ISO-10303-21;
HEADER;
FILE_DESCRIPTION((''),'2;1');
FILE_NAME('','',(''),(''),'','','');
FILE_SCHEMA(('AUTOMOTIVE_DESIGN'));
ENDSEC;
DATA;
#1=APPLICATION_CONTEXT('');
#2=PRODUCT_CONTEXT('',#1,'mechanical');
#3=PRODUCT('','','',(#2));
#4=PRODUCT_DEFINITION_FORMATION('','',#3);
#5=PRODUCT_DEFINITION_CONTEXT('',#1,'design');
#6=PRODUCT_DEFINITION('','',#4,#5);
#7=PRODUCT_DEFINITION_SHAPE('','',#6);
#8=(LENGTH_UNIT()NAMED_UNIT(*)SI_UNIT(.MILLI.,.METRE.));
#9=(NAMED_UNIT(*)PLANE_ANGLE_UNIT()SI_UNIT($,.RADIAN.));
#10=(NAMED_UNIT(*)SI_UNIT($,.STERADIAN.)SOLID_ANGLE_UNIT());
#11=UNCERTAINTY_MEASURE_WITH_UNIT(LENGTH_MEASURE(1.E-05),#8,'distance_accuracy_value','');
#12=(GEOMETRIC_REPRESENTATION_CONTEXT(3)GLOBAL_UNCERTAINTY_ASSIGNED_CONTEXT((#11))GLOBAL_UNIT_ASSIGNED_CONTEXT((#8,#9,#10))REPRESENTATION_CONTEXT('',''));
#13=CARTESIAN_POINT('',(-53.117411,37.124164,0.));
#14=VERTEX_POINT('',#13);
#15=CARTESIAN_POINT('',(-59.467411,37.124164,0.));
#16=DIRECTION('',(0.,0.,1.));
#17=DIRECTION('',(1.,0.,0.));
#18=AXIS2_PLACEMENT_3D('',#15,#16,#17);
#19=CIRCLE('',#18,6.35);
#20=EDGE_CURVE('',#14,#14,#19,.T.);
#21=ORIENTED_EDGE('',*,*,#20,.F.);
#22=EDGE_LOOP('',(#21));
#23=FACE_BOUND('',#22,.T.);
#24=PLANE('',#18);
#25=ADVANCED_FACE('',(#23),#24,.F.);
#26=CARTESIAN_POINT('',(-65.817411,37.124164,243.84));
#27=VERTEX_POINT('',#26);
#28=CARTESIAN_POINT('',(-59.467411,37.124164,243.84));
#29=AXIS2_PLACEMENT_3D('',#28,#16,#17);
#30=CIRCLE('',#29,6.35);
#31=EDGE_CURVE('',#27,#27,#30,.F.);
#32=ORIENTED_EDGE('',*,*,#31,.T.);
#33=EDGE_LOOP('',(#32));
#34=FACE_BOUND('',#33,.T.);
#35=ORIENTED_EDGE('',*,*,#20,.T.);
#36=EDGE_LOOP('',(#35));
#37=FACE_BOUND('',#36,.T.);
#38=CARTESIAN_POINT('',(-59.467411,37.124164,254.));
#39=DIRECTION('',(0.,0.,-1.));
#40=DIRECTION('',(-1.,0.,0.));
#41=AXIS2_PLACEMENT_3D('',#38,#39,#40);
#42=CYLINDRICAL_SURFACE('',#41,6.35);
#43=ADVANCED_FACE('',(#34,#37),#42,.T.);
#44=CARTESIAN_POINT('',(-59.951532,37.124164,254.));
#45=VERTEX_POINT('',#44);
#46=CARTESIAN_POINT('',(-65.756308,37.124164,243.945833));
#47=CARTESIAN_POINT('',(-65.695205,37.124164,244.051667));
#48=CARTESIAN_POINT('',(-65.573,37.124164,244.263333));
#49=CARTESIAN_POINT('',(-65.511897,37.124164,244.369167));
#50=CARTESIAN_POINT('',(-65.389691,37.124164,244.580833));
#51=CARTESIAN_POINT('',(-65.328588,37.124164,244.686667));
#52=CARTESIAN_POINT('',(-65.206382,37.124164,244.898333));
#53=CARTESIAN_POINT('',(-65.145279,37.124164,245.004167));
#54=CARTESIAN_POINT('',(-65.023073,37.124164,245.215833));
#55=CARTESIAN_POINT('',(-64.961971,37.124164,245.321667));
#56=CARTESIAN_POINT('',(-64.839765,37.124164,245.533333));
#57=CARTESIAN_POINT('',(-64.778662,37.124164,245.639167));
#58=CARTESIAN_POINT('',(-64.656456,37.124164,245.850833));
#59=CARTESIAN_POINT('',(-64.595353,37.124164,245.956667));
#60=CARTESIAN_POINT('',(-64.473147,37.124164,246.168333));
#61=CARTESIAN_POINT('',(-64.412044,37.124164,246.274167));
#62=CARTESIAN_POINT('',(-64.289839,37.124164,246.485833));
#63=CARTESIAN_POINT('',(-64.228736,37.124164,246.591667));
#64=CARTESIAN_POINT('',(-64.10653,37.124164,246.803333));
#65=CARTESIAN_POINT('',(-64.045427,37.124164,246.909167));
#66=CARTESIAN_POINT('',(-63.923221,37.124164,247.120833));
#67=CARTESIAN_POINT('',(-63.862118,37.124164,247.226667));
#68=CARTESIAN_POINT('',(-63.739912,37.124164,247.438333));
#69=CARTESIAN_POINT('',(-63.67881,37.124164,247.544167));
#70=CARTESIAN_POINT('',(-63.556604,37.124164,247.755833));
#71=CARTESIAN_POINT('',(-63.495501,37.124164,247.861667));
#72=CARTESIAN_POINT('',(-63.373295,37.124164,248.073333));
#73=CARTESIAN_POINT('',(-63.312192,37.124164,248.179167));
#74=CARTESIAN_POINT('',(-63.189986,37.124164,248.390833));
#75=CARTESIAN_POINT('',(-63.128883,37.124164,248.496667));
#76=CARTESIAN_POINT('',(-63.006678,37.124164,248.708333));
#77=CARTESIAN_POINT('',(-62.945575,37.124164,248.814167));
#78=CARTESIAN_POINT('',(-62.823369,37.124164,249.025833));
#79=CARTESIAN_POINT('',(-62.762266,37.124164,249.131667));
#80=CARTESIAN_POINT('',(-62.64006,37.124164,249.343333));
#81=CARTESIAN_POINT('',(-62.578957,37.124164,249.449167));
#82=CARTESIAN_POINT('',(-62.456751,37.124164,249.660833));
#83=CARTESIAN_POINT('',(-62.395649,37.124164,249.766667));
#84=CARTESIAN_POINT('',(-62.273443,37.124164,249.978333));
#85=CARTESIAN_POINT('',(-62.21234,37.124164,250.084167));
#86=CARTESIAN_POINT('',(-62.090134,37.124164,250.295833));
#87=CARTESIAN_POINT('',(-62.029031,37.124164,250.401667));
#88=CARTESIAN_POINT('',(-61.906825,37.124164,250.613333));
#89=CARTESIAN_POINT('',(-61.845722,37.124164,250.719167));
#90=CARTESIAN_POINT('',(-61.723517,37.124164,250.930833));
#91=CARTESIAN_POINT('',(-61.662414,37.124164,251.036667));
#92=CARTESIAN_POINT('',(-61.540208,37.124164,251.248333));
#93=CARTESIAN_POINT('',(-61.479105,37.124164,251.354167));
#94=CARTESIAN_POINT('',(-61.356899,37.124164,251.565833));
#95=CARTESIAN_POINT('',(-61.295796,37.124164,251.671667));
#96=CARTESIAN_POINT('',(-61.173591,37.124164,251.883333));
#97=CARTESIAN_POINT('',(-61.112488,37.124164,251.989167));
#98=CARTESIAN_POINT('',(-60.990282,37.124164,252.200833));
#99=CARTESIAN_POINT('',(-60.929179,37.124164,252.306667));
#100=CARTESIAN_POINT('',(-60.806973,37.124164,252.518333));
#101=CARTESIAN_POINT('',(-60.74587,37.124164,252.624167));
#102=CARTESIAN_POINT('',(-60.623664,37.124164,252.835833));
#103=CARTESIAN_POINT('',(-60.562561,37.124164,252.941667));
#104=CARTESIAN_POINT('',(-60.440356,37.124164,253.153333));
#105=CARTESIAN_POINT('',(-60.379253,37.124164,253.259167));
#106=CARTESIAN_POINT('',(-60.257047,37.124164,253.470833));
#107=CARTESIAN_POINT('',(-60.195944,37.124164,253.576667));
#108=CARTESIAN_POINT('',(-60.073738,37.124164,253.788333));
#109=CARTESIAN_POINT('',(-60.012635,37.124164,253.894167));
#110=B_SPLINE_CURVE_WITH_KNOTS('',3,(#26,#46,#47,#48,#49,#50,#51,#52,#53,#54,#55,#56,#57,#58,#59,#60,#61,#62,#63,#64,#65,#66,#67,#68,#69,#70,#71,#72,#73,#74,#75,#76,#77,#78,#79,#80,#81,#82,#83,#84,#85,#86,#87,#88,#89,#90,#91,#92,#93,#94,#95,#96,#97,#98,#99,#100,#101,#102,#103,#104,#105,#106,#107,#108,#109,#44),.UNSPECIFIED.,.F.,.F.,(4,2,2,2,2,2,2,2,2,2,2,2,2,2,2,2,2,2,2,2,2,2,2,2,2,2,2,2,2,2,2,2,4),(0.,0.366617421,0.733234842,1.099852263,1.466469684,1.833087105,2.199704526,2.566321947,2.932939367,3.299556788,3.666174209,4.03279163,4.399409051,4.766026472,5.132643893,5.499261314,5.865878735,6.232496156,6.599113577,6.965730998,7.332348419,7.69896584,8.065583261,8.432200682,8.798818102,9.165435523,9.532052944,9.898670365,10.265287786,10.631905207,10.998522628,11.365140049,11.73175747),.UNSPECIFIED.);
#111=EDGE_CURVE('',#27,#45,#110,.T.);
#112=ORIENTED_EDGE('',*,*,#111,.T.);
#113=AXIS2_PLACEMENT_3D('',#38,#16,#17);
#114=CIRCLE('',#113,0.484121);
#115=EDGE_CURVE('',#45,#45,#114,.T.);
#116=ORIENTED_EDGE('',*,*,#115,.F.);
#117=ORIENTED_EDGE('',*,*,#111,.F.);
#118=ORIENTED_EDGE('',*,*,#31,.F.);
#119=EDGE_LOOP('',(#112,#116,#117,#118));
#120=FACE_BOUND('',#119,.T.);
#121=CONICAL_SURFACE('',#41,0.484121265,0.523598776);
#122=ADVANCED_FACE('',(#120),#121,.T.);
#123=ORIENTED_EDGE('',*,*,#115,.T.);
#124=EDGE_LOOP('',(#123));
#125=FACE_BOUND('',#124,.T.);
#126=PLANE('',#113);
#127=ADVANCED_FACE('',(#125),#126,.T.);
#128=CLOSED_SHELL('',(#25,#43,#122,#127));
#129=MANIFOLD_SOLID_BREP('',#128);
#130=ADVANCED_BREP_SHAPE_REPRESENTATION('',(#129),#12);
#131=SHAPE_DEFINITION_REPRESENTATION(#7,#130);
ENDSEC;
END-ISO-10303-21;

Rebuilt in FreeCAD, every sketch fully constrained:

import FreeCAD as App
import Part
import Sketcher

V = App.Vector
Q = App.Units.Quantity


def edges_at(feature, points):
    """Names of the edges that pass closest to the given points."""
    edges = feature.Shape.Edges
    near = lambda p: min(range(len(edges)), key=lambda i: edges[i].distToShape(Part.Vertex(*p))[0])
    return sorted({f"Edge{near(p) + 1}" for p in points})

doc = App.newDocument("Part")
body = doc.addObject("PartDesign::Body", "Body")

# Sketch on XY plane
sketch1 = doc.addObject("Sketcher::SketchObject", "Sketch")
body.addObject(sketch1)
sketch1.AttachmentSupport = (doc.XY_Plane, [""])
sketch1.MapMode = "FlatFace"
sketch1.addGeometry(Part.Circle(V(-59, 37, 0), V(0, 0, 1), 6), False)
sketch1.addConstraint([
    Sketcher.Constraint("Diameter", 0, Q("0.5 in")),
    Sketcher.Constraint("DistanceX", 0, 3, -1, 1, Q("59.467411 mm")),
    Sketcher.Constraint("DistanceY", -1, 1, 0, 3, Q("37.124164 mm")),
])
pad1 = doc.addObject("PartDesign::Pad", "Pad")
body.addObject(pad1)
pad1.Profile = sketch1
pad1.Length = Q("10 in")
doc.recompute()

chamfer = doc.addObject("PartDesign::Chamfer", "Chamfer")
body.addObject(chamfer)
chamfer.Base = (pad1, edges_at(pad1, [(-65.817, 37.124, 254)]))
chamfer.ChamferType = "Two distances"
chamfer.Size = Q("0.4 in")
chamfer.Size2 = 5.865879

doc.recompute()
